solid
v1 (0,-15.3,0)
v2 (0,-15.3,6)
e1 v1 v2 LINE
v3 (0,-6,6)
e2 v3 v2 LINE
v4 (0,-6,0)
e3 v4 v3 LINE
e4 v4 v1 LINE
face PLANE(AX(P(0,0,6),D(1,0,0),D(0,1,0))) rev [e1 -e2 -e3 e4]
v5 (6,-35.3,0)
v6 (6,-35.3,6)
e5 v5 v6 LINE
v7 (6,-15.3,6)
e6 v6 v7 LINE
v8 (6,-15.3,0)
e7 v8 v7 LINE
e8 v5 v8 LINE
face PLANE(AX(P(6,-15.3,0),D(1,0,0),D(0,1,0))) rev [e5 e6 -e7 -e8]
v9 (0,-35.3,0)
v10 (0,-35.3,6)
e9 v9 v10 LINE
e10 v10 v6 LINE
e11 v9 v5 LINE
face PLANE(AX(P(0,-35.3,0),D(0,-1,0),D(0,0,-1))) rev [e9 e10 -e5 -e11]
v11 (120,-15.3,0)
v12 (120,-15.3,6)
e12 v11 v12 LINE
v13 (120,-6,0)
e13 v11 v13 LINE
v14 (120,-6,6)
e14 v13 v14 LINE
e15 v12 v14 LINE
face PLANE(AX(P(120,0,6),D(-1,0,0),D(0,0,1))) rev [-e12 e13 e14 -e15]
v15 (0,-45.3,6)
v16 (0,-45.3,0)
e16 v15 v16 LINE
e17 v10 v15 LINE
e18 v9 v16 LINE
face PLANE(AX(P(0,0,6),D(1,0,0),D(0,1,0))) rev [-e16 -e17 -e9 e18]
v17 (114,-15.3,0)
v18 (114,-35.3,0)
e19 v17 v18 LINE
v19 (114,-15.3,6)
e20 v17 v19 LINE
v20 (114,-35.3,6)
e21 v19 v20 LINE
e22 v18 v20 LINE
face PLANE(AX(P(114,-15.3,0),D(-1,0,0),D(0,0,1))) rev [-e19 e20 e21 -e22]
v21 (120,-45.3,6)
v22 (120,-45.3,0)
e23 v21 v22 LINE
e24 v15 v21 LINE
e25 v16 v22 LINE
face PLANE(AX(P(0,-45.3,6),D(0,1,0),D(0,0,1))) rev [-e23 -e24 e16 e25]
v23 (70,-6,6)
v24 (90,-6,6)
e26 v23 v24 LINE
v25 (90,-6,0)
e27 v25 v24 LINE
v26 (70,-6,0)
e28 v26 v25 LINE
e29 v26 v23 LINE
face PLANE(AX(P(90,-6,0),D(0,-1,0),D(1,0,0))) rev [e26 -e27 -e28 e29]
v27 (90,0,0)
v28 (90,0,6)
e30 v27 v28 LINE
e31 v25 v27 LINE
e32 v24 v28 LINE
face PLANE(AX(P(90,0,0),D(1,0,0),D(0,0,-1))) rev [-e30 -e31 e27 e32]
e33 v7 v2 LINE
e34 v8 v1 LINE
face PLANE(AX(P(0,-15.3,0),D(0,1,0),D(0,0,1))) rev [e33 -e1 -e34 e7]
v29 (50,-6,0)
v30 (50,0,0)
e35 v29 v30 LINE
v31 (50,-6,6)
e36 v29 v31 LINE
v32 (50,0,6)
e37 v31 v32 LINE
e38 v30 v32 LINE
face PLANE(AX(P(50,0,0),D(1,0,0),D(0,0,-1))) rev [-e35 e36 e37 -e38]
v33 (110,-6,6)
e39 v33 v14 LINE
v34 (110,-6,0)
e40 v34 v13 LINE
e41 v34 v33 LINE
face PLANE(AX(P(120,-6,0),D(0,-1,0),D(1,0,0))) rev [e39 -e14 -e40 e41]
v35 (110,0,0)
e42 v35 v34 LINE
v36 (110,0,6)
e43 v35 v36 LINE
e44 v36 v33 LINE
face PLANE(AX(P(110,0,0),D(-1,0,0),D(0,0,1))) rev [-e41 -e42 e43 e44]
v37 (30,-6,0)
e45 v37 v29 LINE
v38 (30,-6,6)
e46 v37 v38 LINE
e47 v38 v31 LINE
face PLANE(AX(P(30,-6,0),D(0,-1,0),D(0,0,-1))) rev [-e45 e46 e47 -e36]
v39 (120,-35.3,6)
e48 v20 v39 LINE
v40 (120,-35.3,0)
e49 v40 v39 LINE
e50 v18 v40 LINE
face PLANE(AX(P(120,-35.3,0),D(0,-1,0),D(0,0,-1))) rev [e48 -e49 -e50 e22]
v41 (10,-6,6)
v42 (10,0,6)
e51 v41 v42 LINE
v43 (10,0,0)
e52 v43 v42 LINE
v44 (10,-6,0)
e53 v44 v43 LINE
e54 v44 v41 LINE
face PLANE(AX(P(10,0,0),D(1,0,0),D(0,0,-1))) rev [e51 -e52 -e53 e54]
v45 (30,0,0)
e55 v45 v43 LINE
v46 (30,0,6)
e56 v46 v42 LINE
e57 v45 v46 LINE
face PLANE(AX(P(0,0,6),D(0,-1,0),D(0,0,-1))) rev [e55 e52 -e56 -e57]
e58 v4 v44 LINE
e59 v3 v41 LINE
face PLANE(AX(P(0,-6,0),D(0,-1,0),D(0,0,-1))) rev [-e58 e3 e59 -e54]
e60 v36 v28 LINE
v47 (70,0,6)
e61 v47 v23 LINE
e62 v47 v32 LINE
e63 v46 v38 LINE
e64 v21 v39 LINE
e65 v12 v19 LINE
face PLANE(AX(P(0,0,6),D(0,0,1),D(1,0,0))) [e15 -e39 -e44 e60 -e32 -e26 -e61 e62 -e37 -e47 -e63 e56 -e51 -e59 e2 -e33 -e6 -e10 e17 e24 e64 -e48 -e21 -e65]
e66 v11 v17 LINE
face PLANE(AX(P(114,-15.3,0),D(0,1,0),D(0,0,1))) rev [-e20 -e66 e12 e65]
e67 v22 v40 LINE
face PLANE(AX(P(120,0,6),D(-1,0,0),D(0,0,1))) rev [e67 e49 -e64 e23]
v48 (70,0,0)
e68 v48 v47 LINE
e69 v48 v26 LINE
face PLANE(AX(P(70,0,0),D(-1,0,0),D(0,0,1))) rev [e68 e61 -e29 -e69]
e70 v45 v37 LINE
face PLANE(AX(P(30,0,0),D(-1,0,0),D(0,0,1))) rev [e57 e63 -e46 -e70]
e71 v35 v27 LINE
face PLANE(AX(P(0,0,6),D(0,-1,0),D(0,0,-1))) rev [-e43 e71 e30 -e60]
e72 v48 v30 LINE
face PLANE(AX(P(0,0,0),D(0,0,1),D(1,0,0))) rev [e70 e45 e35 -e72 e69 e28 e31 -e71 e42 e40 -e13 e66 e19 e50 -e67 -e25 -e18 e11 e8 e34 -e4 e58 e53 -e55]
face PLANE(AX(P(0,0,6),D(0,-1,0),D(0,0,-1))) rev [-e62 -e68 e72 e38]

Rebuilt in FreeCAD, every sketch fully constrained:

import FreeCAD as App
import Part
import Sketcher
from FreeCAD import Vector


def add_polygon(sketch, points):
    """Adds a closed chain of lines whose ends are joined by coincident constraints."""
    first, n = sketch.GeometryCount, len(points)
    for a, b in zip(points, points[1:] + points[:1]):
        sketch.addGeometry(Part.LineSegment(App.Vector(*a, 0), App.Vector(*b, 0)), False)
    for i in range(n):
        sketch.addConstraint(Sketcher.Constraint("Coincident", first + i, 2, first + (i + 1) % n, 1))

doc = App.newDocument("Part")
body = doc.addObject("PartDesign::Body", "Body")

sketch1 = body.newObject("Sketcher::SketchObject", "Sketch")
sketch1.AttachmentSupport = (doc.getObject("XY_Plane"), [""])
sketch1.MapMode = "FlatFace"
add_polygon(sketch1, [(0, 0), (0, -45), (120, -45), (120, 0)])
sketch1.addConstraint([
    Sketcher.Constraint("Vertical", 0),
    Sketcher.Constraint("Horizontal", 1),
    Sketcher.Constraint("Vertical", 2),
    Sketcher.Constraint("Horizontal", 3),
    Sketcher.Constraint("Coincident", 3, 2, -1, 1),
    Sketcher.Constraint("DistanceX", 1, 1, 1, 2, 120.0),
    Sketcher.Constraint("DistanceY", 0, 2, 0, 1, 45.3),
])
pad1 = body.newObject("PartDesign::Pad", "Pad")
pad1.Profile = sketch1
pad1.Length = 6

sketch2 = body.newObject("Sketcher::SketchObject", "Sketch001")
sketch2.AttachmentSupport = (doc.getObject("XY_Plane"), [""])
sketch2.MapMode = "FlatFace"
sketch2.AttachmentOffset = App.Placement(Vector(0, 0, 6), App.Rotation())
add_polygon(sketch2, [(0, 0), (0, -6), (10, -6), (10, 0)])
add_polygon(sketch2, [(30, 0), (30, -6), (50, -6), (50, 0)])
add_polygon(sketch2, [(70, 0), (70, -6), (90, -6), (90, 0)])
add_polygon(sketch2, [(110, 0), (110, -6), (120, -6), (120, 0)])
add_polygon(sketch2, [(114, -15), (114, -35), (120, -35), (120, -15)])
add_polygon(sketch2, [(0, -15), (0, -35), (6, -35), (6, -15)])
sketch2.addConstraint([
    Sketcher.Constraint("Vertical", 0),
    Sketcher.Constraint("Horizontal", 1),
    Sketcher.Constraint("Vertical", 2),
    Sketcher.Constraint("Horizontal", 3),
    Sketcher.Constraint("Vertical", 4),
    Sketcher.Constraint("Horizontal", 5),
    Sketcher.Constraint("Vertical", 6),
    Sketcher.Constraint("Horizontal", 7),
    Sketcher.Constraint("Vertical", 8),
    Sketcher.Constraint("Horizontal", 9),
    Sketcher.Constraint("Vertical", 10),
    Sketcher.Constraint("Horizontal", 11),
    Sketcher.Constraint("Vertical", 12),
    Sketcher.Constraint("Horizontal", 13),
    Sketcher.Constraint("Vertical", 14),
    Sketcher.Constraint("Horizontal", 15),
    Sketcher.Constraint("Vertical", 16),
    Sketcher.Constraint("Horizontal", 17),
    Sketcher.Constraint("Vertical", 18),
    Sketcher.Constraint("Horizontal", 19),
    Sketcher.Constraint("Vertical", 20),
    Sketcher.Constraint("Horizontal", 21),
    Sketcher.Constraint("Vertical", 22),
    Sketcher.Constraint("Horizontal", 23),
    Sketcher.Constraint("Coincident", 3, 2, -1, 1),
    Sketcher.Constraint("PointOnObject", 6, 2, -1),
    Sketcher.Constraint("PointOnObject", 10, 2, -1),
    Sketcher.Constraint("PointOnObject", 14, 2, -1),
    Sketcher.Constraint("PointOnObject", 20, 2, -2),
    Sketcher.Constraint("Horizontal", 1, 2, 4, 2),
    Sketcher.Constraint("Horizontal", 5, 2, 8, 2),
    Sketcher.Constraint("Horizontal", 9, 2, 12, 2),
    Sketcher.Constraint("Horizontal", 17, 2, 20, 2),
    Sketcher.Constraint("Horizontal", 19, 2, 22, 2),
    Sketcher.Constraint("Vertical", 14, 2, 17, 2),
    Sketcher.Constraint("Equal", 7, 9),
    Sketcher.Constraint("Equal", 3, 13),
    Sketcher.Constraint("Equal", 19, 21),
    Sketcher.Constraint("Equal", 23, 0),
    Sketcher.Constraint("Equal", 11, 16),
    Sketcher.Constraint("DistanceX", 1, 1, 1, 2, 10.0),
    Sketcher.Constraint("DistanceX", 5, 1, 5, 2, 20.0),
    Sketcher.Constraint("DistanceX", 17, 1, 17, 2, 6.0),
    Sketcher.Constraint("DistanceX", -1, 1, 4, 2, 30.0),
    Sketcher.Constraint("DistanceX", -1, 1, 8, 2, 70.0),
    Sketcher.Constraint("DistanceX", -1, 1, 12, 2, 110.0),
    Sketcher.Constraint("DistanceY", 16, 2, -1, 1, 35.3),
])
pocket1 = body.newObject("PartDesign::Pocket", "Pocket")
pocket1.Profile = sketch2
pocket1.Length = 6

doc.recompute()
